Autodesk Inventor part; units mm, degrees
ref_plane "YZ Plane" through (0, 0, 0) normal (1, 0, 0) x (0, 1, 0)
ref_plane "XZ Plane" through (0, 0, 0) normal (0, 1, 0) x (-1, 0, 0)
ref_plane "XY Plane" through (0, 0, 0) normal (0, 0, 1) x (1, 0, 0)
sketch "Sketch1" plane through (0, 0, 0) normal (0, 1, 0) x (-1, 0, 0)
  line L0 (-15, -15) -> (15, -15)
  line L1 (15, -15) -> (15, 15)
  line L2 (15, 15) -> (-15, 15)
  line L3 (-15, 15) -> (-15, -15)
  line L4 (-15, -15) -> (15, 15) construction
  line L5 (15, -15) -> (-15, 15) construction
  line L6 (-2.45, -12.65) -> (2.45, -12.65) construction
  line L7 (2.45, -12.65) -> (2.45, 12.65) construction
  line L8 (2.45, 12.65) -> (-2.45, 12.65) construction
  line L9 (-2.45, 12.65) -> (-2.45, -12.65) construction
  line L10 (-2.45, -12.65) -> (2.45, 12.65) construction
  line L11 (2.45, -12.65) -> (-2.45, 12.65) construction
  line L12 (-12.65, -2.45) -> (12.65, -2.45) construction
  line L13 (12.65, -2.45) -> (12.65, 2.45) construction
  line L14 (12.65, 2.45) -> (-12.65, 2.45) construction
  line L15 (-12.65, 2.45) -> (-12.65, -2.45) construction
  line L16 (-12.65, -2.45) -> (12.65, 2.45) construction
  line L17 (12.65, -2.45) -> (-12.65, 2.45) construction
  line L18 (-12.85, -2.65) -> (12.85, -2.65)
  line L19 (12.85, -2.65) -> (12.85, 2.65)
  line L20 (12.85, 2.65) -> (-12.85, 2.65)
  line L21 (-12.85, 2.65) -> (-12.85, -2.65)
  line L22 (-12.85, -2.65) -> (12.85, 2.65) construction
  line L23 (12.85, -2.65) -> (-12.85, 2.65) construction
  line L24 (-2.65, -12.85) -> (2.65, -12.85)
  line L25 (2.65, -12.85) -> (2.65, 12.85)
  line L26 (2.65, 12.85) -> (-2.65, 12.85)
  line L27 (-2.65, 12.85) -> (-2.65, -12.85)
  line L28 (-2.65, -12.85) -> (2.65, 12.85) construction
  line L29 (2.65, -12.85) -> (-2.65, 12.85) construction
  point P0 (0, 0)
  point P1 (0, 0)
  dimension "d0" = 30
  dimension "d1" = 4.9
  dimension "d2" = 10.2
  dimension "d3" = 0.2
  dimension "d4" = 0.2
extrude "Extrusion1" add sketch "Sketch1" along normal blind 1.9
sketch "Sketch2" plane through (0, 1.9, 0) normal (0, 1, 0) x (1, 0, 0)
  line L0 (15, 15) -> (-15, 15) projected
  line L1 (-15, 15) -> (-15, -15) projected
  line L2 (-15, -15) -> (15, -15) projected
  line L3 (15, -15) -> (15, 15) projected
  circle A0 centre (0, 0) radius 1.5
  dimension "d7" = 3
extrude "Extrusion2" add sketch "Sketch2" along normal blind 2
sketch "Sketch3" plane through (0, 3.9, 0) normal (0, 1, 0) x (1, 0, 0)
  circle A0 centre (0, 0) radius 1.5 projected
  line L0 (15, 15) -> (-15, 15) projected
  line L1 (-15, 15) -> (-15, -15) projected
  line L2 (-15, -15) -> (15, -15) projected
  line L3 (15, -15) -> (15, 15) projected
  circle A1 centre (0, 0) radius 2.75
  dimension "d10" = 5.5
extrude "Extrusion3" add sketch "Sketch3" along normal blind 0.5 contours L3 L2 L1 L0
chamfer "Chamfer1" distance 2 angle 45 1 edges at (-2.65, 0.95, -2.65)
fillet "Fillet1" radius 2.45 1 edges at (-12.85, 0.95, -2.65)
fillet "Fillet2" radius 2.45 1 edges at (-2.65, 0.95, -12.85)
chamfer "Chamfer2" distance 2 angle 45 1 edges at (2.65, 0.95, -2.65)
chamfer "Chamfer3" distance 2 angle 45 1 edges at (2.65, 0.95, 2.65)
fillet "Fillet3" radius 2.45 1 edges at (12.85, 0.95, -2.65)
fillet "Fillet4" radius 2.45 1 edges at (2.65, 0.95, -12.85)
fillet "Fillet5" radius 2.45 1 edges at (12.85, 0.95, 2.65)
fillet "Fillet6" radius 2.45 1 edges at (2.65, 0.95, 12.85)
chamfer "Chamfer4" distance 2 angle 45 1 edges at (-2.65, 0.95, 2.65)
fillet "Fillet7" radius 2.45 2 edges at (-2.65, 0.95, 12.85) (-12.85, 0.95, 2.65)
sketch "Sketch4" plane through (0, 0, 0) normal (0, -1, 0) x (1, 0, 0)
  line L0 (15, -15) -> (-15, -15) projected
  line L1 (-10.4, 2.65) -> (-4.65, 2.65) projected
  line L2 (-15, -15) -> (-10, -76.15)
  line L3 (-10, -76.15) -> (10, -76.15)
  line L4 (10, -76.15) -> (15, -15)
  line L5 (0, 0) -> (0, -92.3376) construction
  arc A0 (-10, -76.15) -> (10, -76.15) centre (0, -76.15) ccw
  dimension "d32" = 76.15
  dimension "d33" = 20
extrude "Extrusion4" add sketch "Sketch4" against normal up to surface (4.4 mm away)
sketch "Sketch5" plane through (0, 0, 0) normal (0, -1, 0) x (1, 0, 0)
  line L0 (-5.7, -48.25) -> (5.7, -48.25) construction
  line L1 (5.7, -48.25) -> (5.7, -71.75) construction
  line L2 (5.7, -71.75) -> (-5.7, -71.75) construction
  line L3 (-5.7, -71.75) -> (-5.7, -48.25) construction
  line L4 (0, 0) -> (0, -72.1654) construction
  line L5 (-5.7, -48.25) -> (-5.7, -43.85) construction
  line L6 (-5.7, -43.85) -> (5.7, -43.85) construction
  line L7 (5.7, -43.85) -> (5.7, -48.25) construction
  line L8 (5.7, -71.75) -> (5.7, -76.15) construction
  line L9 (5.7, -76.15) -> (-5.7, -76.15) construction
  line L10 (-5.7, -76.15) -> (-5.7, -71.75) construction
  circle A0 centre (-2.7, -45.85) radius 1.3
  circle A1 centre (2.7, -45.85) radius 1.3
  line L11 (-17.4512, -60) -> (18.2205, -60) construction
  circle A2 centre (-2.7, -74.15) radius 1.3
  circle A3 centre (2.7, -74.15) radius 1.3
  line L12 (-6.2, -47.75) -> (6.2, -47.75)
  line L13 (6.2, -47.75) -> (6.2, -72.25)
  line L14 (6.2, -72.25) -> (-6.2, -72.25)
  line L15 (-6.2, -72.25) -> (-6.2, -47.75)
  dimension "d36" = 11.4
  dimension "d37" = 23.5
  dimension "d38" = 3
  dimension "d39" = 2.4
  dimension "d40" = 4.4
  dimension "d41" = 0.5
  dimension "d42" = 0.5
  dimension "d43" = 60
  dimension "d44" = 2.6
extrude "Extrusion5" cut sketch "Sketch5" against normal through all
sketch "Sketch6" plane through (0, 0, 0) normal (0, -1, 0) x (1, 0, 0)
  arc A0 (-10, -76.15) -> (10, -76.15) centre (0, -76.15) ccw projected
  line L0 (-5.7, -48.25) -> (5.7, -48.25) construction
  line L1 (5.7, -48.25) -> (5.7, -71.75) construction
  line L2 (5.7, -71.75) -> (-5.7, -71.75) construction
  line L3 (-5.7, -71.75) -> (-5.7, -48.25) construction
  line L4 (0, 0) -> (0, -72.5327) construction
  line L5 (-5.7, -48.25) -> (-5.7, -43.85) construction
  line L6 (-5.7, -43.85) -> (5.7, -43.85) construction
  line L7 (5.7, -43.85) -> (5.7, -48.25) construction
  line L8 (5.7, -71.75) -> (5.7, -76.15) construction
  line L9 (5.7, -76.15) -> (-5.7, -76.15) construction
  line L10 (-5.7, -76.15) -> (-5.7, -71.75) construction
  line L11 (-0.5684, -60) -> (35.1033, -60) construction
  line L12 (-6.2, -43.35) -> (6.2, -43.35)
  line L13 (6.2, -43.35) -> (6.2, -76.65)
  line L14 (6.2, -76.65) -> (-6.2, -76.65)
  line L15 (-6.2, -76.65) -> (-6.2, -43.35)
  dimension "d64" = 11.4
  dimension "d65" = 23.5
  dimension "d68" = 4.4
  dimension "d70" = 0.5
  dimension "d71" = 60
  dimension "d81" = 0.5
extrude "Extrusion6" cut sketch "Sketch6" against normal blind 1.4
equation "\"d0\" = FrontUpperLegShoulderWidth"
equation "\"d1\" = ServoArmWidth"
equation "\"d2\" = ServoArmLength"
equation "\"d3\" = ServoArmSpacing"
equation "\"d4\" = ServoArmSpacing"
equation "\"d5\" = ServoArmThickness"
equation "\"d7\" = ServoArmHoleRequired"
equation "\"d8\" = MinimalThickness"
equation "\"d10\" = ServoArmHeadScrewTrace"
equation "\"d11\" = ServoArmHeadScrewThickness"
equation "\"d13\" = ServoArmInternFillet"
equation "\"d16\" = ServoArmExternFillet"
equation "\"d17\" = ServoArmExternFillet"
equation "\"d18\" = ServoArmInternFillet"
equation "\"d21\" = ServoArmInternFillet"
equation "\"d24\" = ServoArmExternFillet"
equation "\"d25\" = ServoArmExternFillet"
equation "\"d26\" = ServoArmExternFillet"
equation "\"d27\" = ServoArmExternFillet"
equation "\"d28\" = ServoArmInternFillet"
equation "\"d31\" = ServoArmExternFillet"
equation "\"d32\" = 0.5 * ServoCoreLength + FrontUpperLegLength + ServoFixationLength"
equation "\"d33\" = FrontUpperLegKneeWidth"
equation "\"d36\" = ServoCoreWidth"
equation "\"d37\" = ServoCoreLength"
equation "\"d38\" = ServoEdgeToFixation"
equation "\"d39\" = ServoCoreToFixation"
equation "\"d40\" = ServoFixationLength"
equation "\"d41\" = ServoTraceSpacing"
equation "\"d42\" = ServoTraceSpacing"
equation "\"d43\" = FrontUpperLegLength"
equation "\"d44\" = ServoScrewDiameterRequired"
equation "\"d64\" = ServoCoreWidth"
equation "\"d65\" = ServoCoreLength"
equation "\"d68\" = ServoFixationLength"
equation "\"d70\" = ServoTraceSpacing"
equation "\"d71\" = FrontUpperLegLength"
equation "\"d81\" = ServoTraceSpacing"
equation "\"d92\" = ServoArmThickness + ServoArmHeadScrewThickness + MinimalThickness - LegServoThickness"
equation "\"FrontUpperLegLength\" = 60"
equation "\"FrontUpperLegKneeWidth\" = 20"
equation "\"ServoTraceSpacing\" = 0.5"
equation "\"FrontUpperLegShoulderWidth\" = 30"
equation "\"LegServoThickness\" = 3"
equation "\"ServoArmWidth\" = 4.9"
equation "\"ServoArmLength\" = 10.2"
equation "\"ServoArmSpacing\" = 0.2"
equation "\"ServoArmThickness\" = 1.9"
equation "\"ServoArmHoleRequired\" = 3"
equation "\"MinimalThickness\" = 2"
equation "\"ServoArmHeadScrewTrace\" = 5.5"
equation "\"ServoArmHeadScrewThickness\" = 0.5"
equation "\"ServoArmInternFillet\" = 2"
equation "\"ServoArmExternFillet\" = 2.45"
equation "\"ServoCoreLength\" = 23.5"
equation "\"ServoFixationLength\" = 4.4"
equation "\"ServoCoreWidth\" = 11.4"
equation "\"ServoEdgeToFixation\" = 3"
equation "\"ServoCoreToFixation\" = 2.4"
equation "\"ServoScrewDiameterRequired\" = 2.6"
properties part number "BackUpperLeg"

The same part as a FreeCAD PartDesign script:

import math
import FreeCAD as App
import Part
import Sketcher

V = App.Vector
Q = App.Units.Quantity


def edges_at(feature, points):
    """Names of the edges that pass closest to the given points."""
    edges = feature.Shape.Edges
    near = lambda p: min(range(len(edges)), key=lambda i: edges[i].distToShape(Part.Vertex(*p))[0])
    return sorted({f"Edge{near(p) + 1}" for p in points})


def add_polygon(sketch, points):
    """Adds a closed chain of lines whose ends are joined by coincident constraints."""
    first, n = sketch.GeometryCount, len(points)
    for a, b in zip(points, points[1:] + points[:1]):
        sketch.addGeometry(Part.LineSegment(App.Vector(*a, 0), App.Vector(*b, 0)), False)
    for i in range(n):
        sketch.addConstraint(Sketcher.Constraint("Coincident", first + i, 2, first + (i + 1) % n, 1))

doc = App.newDocument("Part")
body = doc.addObject("PartDesign::Body", "Body")

sketch1 = body.newObject("Sketcher::SketchObject", "Sketch")
sketch1.AttachmentSupport = (doc.getObject("XZ_Plane"), [""])
sketch1.MapMode = "FlatFace"
add_polygon(sketch1, [(15, 15), (15, -15), (-15, -15), (-15, 15)])
add_polygon(sketch1, [(2.65, -2.65), (12.85, -2.65), (12.85, 2.65), (2.65, 2.65), (2.65, 12.85), (-2.65, 12.85), (-2.65, 2.65), (-12.85, 2.65), (-12.85, -2.65), (-2.65, -2.65), (-2.65, -12.85), (2.65, -12.85)])
sketch1.addConstraint(Sketcher.Constraint("Vertical", 0))
sketch1.addConstraint(Sketcher.Constraint("Horizontal", 1))
sketch1.addConstraint(Sketcher.Constraint("Vertical", 2))
sketch1.addConstraint(Sketcher.Constraint("Horizontal", 3))
sketch1.addConstraint(Sketcher.Constraint("Horizontal", 4))
sketch1.addConstraint(Sketcher.Constraint("Vertical", 5))
sketch1.addConstraint(Sketcher.Constraint("Horizontal", 6))
sketch1.addConstraint(Sketcher.Constraint("Vertical", 7))
sketch1.addConstraint(Sketcher.Constraint("Horizontal", 8))
sketch1.addConstraint(Sketcher.Constraint("Vertical", 9))
sketch1.addConstraint(Sketcher.Constraint("Horizontal", 10))
sketch1.addConstraint(Sketcher.Constraint("Vertical", 11))
sketch1.addConstraint(Sketcher.Constraint("Horizontal", 12))
sketch1.addConstraint(Sketcher.Constraint("Vertical", 13))
sketch1.addConstraint(Sketcher.Constraint("Horizontal", 14))
sketch1.addConstraint(Sketcher.Constraint("Vertical", 15))
sketch1.addConstraint(Sketcher.Constraint("Symmetric", 0, 2, 2, 2, -1, 1))
sketch1.addConstraint(Sketcher.Constraint("Symmetric", 4, 2, 10, 2, -1, 1))
sketch1.addConstraint(Sketcher.Constraint("Symmetric", 6, 2, 12, 2, -1, 1))
sketch1.addConstraint(Sketcher.Constraint("Symmetric", 8, 2, 14, 2, -1, 1))
sketch1.addConstraint(Sketcher.Constraint("Symmetric", 6, 2, 9, 2, -2))
sketch1.addConstraint(Sketcher.Constraint("Equal", 3, 0))
sketch1.addConstraint(Sketcher.Constraint("Equal", 14, 5))
sketch1.addConstraint(Sketcher.Constraint("Equal", 12, 7))
sketch1.addConstraint(Sketcher.Constraint("DistanceX", 1, 2, 1, 1, Q("30 mm")))
sketch1.addConstraint(Sketcher.Constraint("DistanceX", 4, 1, 4, 2, Q("10.2 mm")))
sketch1.addConstraint(Sketcher.Constraint("DistanceX", 8, 2, 8, 1, Q("5.3 mm")))
pad1 = body.newObject("PartDesign::Pad", "Pad")
pad1.Profile = sketch1
pad1.Length = 1.9
pad1.Reversed = True

sketch2 = body.newObject("Sketcher::SketchObject", "Sketch001")
sketch2.AttachmentSupport = (doc.getObject("XZ_Plane"), [""])
sketch2.MapMode = "FlatFace"
sketch2.AttachmentOffset = App.Placement(V(0, 0, -1.9), App.Rotation())
add_polygon(sketch2, [(15, 15), (15, -15), (-15, -15), (-15, 15)])
sketch2.addGeometry(Part.Circle(V(0, 0, 0), V(0, 0, 1), 1.5), False)
sketch2.addConstraint(Sketcher.Constraint("Vertical", 0))
sketch2.addConstraint(Sketcher.Constraint("Horizontal", 1))
sketch2.addConstraint(Sketcher.Constraint("Vertical", 2))
sketch2.addConstraint(Sketcher.Constraint("Horizontal", 3))
sketch2.addConstraint(Sketcher.Constraint("Coincident", 4, 3, -1, 1))
sketch2.addConstraint(Sketcher.Constraint("Symmetric", 0, 2, 2, 2, -1, 1))
sketch2.addConstraint(Sketcher.Constraint("Equal", 3, 0))
sketch2.addConstraint(Sketcher.Constraint("Diameter", 4, Q("3 mm")))
sketch2.addConstraint(Sketcher.Constraint("DistanceX", 1, 2, 1, 1, Q("30 mm")))
pad2 = body.newObject("PartDesign::Pad", "Pad001")
pad2.Profile = sketch2
pad2.Length = 2
pad2.Reversed = True

sketch3 = body.newObject("Sketcher::SketchObject", "Sketch002")
sketch3.AttachmentSupport = (doc.getObject("XZ_Plane"), [""])
sketch3.MapMode = "FlatFace"
sketch3.AttachmentOffset = App.Placement(V(0, 0, -3.9), App.Rotation())
add_polygon(sketch3, [(15, 15), (15, -15), (-15, -15), (-15, 15)])
sketch3.addGeometry(Part.Circle(V(0, 0, 0), V(0, 0, 1), 2.75), False)
sketch3.addConstraint(Sketcher.Constraint("Vertical", 0))
sketch3.addConstraint(Sketcher.Constraint("Horizontal", 1))
sketch3.addConstraint(Sketcher.Constraint("Vertical", 2))
sketch3.addConstraint(Sketcher.Constraint("Horizontal", 3))
sketch3.addConstraint(Sketcher.Constraint("Coincident", 4, 3, -1, 1))
sketch3.addConstraint(Sketcher.Constraint("Symmetric", 0, 2, 2, 2, -1, 1))
sketch3.addConstraint(Sketcher.Constraint("Equal", 3, 0))
sketch3.addConstraint(Sketcher.Constraint("Diameter", 4, Q("5.5 mm")))
sketch3.addConstraint(Sketcher.Constraint("DistanceX", 1, 2, 1, 1, Q("30 mm")))
pad3 = body.newObject("PartDesign::Pad", "Pad002")
pad3.Profile = sketch3
pad3.Length = 0.5
pad3.Reversed = True
doc.recompute()

chamfer = body.newObject("PartDesign::Chamfer", "Chamfer")
chamfer.Base = (pad3, edges_at(pad3, [(-2.65, 0.95, -2.65)]))
chamfer.Size = 2
doc.recompute()

fillet = body.newObject("PartDesign::Fillet", "Fillet")
fillet.Base = (chamfer, edges_at(chamfer, [(-12.85, 0.95, -2.65)]))
fillet.Radius = 2.45
doc.recompute()

fillet2 = body.newObject("PartDesign::Fillet", "Fillet001")
fillet2.Base = (fillet, edges_at(fillet, [(-2.65, 0.95, -12.85)]))
fillet2.Radius = 2.45
doc.recompute()

chamfer2 = body.newObject("PartDesign::Chamfer", "Chamfer001")
chamfer2.Base = (fillet2, edges_at(fillet2, [(2.65, 0.95, -2.65)]))
chamfer2.Size = 2
doc.recompute()

chamfer3 = body.newObject("PartDesign::Chamfer", "Chamfer002")
chamfer3.Base = (chamfer2, edges_at(chamfer2, [(2.65, 0.95, 2.65)]))
chamfer3.Size = 2
doc.recompute()

fillet3 = body.newObject("PartDesign::Fillet", "Fillet002")
fillet3.Base = (chamfer3, edges_at(chamfer3, [(12.85, 0.95, -2.65)]))
fillet3.Radius = 2.45
doc.recompute()

fillet4 = body.newObject("PartDesign::Fillet", "Fillet003")
fillet4.Base = (fillet3, edges_at(fillet3, [(2.65, 0.95, -12.85)]))
fillet4.Radius = 2.45
doc.recompute()

fillet5 = body.newObject("PartDesign::Fillet", "Fillet004")
fillet5.Base = (fillet4, edges_at(fillet4, [(12.85, 0.95, 2.65)]))
fillet5.Radius = 2.45
doc.recompute()

fillet6 = body.newObject("PartDesign::Fillet", "Fillet005")
fillet6.Base = (fillet5, edges_at(fillet5, [(2.65, 0.95, 12.85)]))
fillet6.Radius = 2.45
doc.recompute()

chamfer4 = body.newObject("PartDesign::Chamfer", "Chamfer003")
chamfer4.Base = (fillet6, edges_at(fillet6, [(-2.65, 0.95, 2.65)]))
chamfer4.Size = 2
doc.recompute()

fillet7 = body.newObject("PartDesign::Fillet", "Fillet006")
fillet7.Base = (chamfer4, edges_at(chamfer4, [(-2.65, 0.95, 12.85), (-12.85, 0.95, 2.65)]))
fillet7.Radius = 2.45

sketch4 = body.newObject("Sketcher::SketchObject", "Sketch003")
sketch4.AttachmentSupport = (doc.getObject("XZ_Plane"), [""])
sketch4.MapMode = "FlatFace"
sketch4.addGeometry(Part.LineSegment(V(10, -76.15, 0), V(15, -15, 0)), False)
sketch4.addGeometry(Part.LineSegment(V(15, -15, 0), V(-15, -15, 0)), False)
sketch4.addGeometry(Part.LineSegment(V(-15, -15, 0), V(-10, -76.15, 0)), False)
sketch4.addGeometry(Part.ArcOfCircle(Part.Circle(V(0, -76.15, 0), V(0, 0, 1), 10), math.radians(180), math.radians(360)), False)
sketch4.addConstraint(Sketcher.Constraint("Coincident", 0, 2, 1, 1))
sketch4.addConstraint(Sketcher.Constraint("Coincident", 1, 2, 2, 1))
sketch4.addConstraint(Sketcher.Constraint("Coincident", 2, 2, 3, 1))
sketch4.addConstraint(Sketcher.Constraint("Coincident", 3, 2, 0, 1))
sketch4.addConstraint(Sketcher.Constraint("Horizontal", 1))
sketch4.addConstraint(Sketcher.Constraint("Symmetric", 2, 2, 3, 2, -2))
sketch4.addConstraint(Sketcher.Constraint("Horizontal", 3, 3, 2, 2))
sketch4.addConstraint(Sketcher.Constraint("Equal", 0, 2))
sketch4.addConstraint(Sketcher.Constraint("Radius", 3, Q("10 mm")))
sketch4.addConstraint(Sketcher.Constraint("DistanceX", 1, 2, 1, 1, Q("30 mm")))
sketch4.addConstraint(Sketcher.Constraint("DistanceY", 3, 3, -1, 1, Q("76.15 mm")))
sketch4.addConstraint(Sketcher.Constraint("DistanceY", 0, 2, -1, 1, Q("15 mm")))
pad4 = body.newObject("PartDesign::Pad", "Pad003")
pad4.Profile = sketch4
pad4.Length = 4.4
pad4.Reversed = True

sketch5 = body.newObject("Sketcher::SketchObject", "Sketch004")
sketch5.AttachmentSupport = (doc.getObject("XZ_Plane"), [""])
sketch5.MapMode = "FlatFace"
sketch5.addGeometry(Part.Circle(V(-2.7, -45.85, 0), V(0, 0, 1), 1.3), False)
sketch5.addGeometry(Part.Circle(V(2.7, -45.85, 0), V(0, 0, 1), 1.3), False)
sketch5.addGeometry(Part.Circle(V(-2.7, -74.15, 0), V(0, 0, 1), 1.3), False)
sketch5.addGeometry(Part.Circle(V(2.7, -74.15, 0), V(0, 0, 1), 1.3), False)
add_polygon(sketch5, [(6.2, -47.75), (-6.2, -47.75), (-6.2, -72.25), (6.2, -72.25)])
sketch5.addConstraint(Sketcher.Constraint("Horizontal", 4))
sketch5.addConstraint(Sketcher.Constraint("Vertical", 5))
sketch5.addConstraint(Sketcher.Constraint("Horizontal", 6))
sketch5.addConstraint(Sketcher.Constraint("Vertical", 7))
sketch5.addConstraint(Sketcher.Constraint("Equal", 0, 1))
sketch5.addConstraint(Sketcher.Constraint("Equal", 1, 2))
sketch5.addConstraint(Sketcher.Constraint("Equal", 2, 3))
sketch5.addConstraint(Sketcher.Constraint("Symmetric", 0, 3, 1, 3, -2))
sketch5.addConstraint(Sketcher.Constraint("Symmetric", 2, 3, 3, 3, -2))
sketch5.addConstraint(Sketcher.Constraint("Vertical", 0, 3, 2, 3))
sketch5.addConstraint(Sketcher.Constraint("Diameter", 0, Q("2.6 mm")))
sketch5.addConstraint(Sketcher.Constraint("DistanceX", 4, 2, 4, 1, Q("12.4 mm")))
sketch5.addConstraint(Sketcher.Constraint("DistanceY", 5, 2, 5, 1, Q("24.5 mm")))
sketch5.addConstraint(Sketcher.Constraint("DistanceX", 0, 3, -1, 1, Q("2.7 mm")))
sketch5.addConstraint(Sketcher.Constraint("DistanceX", 4, 2, -1, 1, Q("6.2 mm")))
sketch5.addConstraint(Sketcher.Constraint("DistanceY", 2, 3, 0, 3, Q("28.3 mm")))
sketch5.addConstraint(Sketcher.Constraint("DistanceY", 4, 2, 0, 3, Q("1.9 mm")))
sketch5.addConstraint(Sketcher.Constraint("DistanceY", 0, 3, -1, 1, Q("45.85 mm")))
pocket1 = body.newObject("PartDesign::Pocket", "Pocket")
pocket1.Profile = sketch5
pocket1.Type = "ThroughAll"

sketch6 = body.newObject("Sketcher::SketchObject", "Sketch005")
sketch6.AttachmentSupport = (doc.getObject("XZ_Plane"), [""])
sketch6.MapMode = "FlatFace"
add_polygon(sketch6, [(6.2, -43.35), (-6.2, -43.35), (-6.2, -76.65), (6.2, -76.65)])
sketch6.addConstraint(Sketcher.Constraint("Horizontal", 0))
sketch6.addConstraint(Sketcher.Constraint("Vertical", 1))
sketch6.addConstraint(Sketcher.Constraint("Horizontal", 2))
sketch6.addConstraint(Sketcher.Constraint("Vertical", 3))
sketch6.addConstraint(Sketcher.Constraint("DistanceX", 0, 2, 0, 1, Q("12.4 mm")))
sketch6.addConstraint(Sketcher.Constraint("DistanceY", 1, 2, 1, 1, Q("33.3 mm")))
sketch6.addConstraint(Sketcher.Constraint("DistanceX", 0, 2, -1, 1, Q("6.2 mm")))
sketch6.addConstraint(Sketcher.Constraint("DistanceY", 0, 2, -1, 1, Q("43.35 mm")))
pocket2 = body.newObject("PartDesign::Pocket", "Pocket001")
pocket2.Profile = sketch6
pocket2.Length = 1.4

doc.recompute()
